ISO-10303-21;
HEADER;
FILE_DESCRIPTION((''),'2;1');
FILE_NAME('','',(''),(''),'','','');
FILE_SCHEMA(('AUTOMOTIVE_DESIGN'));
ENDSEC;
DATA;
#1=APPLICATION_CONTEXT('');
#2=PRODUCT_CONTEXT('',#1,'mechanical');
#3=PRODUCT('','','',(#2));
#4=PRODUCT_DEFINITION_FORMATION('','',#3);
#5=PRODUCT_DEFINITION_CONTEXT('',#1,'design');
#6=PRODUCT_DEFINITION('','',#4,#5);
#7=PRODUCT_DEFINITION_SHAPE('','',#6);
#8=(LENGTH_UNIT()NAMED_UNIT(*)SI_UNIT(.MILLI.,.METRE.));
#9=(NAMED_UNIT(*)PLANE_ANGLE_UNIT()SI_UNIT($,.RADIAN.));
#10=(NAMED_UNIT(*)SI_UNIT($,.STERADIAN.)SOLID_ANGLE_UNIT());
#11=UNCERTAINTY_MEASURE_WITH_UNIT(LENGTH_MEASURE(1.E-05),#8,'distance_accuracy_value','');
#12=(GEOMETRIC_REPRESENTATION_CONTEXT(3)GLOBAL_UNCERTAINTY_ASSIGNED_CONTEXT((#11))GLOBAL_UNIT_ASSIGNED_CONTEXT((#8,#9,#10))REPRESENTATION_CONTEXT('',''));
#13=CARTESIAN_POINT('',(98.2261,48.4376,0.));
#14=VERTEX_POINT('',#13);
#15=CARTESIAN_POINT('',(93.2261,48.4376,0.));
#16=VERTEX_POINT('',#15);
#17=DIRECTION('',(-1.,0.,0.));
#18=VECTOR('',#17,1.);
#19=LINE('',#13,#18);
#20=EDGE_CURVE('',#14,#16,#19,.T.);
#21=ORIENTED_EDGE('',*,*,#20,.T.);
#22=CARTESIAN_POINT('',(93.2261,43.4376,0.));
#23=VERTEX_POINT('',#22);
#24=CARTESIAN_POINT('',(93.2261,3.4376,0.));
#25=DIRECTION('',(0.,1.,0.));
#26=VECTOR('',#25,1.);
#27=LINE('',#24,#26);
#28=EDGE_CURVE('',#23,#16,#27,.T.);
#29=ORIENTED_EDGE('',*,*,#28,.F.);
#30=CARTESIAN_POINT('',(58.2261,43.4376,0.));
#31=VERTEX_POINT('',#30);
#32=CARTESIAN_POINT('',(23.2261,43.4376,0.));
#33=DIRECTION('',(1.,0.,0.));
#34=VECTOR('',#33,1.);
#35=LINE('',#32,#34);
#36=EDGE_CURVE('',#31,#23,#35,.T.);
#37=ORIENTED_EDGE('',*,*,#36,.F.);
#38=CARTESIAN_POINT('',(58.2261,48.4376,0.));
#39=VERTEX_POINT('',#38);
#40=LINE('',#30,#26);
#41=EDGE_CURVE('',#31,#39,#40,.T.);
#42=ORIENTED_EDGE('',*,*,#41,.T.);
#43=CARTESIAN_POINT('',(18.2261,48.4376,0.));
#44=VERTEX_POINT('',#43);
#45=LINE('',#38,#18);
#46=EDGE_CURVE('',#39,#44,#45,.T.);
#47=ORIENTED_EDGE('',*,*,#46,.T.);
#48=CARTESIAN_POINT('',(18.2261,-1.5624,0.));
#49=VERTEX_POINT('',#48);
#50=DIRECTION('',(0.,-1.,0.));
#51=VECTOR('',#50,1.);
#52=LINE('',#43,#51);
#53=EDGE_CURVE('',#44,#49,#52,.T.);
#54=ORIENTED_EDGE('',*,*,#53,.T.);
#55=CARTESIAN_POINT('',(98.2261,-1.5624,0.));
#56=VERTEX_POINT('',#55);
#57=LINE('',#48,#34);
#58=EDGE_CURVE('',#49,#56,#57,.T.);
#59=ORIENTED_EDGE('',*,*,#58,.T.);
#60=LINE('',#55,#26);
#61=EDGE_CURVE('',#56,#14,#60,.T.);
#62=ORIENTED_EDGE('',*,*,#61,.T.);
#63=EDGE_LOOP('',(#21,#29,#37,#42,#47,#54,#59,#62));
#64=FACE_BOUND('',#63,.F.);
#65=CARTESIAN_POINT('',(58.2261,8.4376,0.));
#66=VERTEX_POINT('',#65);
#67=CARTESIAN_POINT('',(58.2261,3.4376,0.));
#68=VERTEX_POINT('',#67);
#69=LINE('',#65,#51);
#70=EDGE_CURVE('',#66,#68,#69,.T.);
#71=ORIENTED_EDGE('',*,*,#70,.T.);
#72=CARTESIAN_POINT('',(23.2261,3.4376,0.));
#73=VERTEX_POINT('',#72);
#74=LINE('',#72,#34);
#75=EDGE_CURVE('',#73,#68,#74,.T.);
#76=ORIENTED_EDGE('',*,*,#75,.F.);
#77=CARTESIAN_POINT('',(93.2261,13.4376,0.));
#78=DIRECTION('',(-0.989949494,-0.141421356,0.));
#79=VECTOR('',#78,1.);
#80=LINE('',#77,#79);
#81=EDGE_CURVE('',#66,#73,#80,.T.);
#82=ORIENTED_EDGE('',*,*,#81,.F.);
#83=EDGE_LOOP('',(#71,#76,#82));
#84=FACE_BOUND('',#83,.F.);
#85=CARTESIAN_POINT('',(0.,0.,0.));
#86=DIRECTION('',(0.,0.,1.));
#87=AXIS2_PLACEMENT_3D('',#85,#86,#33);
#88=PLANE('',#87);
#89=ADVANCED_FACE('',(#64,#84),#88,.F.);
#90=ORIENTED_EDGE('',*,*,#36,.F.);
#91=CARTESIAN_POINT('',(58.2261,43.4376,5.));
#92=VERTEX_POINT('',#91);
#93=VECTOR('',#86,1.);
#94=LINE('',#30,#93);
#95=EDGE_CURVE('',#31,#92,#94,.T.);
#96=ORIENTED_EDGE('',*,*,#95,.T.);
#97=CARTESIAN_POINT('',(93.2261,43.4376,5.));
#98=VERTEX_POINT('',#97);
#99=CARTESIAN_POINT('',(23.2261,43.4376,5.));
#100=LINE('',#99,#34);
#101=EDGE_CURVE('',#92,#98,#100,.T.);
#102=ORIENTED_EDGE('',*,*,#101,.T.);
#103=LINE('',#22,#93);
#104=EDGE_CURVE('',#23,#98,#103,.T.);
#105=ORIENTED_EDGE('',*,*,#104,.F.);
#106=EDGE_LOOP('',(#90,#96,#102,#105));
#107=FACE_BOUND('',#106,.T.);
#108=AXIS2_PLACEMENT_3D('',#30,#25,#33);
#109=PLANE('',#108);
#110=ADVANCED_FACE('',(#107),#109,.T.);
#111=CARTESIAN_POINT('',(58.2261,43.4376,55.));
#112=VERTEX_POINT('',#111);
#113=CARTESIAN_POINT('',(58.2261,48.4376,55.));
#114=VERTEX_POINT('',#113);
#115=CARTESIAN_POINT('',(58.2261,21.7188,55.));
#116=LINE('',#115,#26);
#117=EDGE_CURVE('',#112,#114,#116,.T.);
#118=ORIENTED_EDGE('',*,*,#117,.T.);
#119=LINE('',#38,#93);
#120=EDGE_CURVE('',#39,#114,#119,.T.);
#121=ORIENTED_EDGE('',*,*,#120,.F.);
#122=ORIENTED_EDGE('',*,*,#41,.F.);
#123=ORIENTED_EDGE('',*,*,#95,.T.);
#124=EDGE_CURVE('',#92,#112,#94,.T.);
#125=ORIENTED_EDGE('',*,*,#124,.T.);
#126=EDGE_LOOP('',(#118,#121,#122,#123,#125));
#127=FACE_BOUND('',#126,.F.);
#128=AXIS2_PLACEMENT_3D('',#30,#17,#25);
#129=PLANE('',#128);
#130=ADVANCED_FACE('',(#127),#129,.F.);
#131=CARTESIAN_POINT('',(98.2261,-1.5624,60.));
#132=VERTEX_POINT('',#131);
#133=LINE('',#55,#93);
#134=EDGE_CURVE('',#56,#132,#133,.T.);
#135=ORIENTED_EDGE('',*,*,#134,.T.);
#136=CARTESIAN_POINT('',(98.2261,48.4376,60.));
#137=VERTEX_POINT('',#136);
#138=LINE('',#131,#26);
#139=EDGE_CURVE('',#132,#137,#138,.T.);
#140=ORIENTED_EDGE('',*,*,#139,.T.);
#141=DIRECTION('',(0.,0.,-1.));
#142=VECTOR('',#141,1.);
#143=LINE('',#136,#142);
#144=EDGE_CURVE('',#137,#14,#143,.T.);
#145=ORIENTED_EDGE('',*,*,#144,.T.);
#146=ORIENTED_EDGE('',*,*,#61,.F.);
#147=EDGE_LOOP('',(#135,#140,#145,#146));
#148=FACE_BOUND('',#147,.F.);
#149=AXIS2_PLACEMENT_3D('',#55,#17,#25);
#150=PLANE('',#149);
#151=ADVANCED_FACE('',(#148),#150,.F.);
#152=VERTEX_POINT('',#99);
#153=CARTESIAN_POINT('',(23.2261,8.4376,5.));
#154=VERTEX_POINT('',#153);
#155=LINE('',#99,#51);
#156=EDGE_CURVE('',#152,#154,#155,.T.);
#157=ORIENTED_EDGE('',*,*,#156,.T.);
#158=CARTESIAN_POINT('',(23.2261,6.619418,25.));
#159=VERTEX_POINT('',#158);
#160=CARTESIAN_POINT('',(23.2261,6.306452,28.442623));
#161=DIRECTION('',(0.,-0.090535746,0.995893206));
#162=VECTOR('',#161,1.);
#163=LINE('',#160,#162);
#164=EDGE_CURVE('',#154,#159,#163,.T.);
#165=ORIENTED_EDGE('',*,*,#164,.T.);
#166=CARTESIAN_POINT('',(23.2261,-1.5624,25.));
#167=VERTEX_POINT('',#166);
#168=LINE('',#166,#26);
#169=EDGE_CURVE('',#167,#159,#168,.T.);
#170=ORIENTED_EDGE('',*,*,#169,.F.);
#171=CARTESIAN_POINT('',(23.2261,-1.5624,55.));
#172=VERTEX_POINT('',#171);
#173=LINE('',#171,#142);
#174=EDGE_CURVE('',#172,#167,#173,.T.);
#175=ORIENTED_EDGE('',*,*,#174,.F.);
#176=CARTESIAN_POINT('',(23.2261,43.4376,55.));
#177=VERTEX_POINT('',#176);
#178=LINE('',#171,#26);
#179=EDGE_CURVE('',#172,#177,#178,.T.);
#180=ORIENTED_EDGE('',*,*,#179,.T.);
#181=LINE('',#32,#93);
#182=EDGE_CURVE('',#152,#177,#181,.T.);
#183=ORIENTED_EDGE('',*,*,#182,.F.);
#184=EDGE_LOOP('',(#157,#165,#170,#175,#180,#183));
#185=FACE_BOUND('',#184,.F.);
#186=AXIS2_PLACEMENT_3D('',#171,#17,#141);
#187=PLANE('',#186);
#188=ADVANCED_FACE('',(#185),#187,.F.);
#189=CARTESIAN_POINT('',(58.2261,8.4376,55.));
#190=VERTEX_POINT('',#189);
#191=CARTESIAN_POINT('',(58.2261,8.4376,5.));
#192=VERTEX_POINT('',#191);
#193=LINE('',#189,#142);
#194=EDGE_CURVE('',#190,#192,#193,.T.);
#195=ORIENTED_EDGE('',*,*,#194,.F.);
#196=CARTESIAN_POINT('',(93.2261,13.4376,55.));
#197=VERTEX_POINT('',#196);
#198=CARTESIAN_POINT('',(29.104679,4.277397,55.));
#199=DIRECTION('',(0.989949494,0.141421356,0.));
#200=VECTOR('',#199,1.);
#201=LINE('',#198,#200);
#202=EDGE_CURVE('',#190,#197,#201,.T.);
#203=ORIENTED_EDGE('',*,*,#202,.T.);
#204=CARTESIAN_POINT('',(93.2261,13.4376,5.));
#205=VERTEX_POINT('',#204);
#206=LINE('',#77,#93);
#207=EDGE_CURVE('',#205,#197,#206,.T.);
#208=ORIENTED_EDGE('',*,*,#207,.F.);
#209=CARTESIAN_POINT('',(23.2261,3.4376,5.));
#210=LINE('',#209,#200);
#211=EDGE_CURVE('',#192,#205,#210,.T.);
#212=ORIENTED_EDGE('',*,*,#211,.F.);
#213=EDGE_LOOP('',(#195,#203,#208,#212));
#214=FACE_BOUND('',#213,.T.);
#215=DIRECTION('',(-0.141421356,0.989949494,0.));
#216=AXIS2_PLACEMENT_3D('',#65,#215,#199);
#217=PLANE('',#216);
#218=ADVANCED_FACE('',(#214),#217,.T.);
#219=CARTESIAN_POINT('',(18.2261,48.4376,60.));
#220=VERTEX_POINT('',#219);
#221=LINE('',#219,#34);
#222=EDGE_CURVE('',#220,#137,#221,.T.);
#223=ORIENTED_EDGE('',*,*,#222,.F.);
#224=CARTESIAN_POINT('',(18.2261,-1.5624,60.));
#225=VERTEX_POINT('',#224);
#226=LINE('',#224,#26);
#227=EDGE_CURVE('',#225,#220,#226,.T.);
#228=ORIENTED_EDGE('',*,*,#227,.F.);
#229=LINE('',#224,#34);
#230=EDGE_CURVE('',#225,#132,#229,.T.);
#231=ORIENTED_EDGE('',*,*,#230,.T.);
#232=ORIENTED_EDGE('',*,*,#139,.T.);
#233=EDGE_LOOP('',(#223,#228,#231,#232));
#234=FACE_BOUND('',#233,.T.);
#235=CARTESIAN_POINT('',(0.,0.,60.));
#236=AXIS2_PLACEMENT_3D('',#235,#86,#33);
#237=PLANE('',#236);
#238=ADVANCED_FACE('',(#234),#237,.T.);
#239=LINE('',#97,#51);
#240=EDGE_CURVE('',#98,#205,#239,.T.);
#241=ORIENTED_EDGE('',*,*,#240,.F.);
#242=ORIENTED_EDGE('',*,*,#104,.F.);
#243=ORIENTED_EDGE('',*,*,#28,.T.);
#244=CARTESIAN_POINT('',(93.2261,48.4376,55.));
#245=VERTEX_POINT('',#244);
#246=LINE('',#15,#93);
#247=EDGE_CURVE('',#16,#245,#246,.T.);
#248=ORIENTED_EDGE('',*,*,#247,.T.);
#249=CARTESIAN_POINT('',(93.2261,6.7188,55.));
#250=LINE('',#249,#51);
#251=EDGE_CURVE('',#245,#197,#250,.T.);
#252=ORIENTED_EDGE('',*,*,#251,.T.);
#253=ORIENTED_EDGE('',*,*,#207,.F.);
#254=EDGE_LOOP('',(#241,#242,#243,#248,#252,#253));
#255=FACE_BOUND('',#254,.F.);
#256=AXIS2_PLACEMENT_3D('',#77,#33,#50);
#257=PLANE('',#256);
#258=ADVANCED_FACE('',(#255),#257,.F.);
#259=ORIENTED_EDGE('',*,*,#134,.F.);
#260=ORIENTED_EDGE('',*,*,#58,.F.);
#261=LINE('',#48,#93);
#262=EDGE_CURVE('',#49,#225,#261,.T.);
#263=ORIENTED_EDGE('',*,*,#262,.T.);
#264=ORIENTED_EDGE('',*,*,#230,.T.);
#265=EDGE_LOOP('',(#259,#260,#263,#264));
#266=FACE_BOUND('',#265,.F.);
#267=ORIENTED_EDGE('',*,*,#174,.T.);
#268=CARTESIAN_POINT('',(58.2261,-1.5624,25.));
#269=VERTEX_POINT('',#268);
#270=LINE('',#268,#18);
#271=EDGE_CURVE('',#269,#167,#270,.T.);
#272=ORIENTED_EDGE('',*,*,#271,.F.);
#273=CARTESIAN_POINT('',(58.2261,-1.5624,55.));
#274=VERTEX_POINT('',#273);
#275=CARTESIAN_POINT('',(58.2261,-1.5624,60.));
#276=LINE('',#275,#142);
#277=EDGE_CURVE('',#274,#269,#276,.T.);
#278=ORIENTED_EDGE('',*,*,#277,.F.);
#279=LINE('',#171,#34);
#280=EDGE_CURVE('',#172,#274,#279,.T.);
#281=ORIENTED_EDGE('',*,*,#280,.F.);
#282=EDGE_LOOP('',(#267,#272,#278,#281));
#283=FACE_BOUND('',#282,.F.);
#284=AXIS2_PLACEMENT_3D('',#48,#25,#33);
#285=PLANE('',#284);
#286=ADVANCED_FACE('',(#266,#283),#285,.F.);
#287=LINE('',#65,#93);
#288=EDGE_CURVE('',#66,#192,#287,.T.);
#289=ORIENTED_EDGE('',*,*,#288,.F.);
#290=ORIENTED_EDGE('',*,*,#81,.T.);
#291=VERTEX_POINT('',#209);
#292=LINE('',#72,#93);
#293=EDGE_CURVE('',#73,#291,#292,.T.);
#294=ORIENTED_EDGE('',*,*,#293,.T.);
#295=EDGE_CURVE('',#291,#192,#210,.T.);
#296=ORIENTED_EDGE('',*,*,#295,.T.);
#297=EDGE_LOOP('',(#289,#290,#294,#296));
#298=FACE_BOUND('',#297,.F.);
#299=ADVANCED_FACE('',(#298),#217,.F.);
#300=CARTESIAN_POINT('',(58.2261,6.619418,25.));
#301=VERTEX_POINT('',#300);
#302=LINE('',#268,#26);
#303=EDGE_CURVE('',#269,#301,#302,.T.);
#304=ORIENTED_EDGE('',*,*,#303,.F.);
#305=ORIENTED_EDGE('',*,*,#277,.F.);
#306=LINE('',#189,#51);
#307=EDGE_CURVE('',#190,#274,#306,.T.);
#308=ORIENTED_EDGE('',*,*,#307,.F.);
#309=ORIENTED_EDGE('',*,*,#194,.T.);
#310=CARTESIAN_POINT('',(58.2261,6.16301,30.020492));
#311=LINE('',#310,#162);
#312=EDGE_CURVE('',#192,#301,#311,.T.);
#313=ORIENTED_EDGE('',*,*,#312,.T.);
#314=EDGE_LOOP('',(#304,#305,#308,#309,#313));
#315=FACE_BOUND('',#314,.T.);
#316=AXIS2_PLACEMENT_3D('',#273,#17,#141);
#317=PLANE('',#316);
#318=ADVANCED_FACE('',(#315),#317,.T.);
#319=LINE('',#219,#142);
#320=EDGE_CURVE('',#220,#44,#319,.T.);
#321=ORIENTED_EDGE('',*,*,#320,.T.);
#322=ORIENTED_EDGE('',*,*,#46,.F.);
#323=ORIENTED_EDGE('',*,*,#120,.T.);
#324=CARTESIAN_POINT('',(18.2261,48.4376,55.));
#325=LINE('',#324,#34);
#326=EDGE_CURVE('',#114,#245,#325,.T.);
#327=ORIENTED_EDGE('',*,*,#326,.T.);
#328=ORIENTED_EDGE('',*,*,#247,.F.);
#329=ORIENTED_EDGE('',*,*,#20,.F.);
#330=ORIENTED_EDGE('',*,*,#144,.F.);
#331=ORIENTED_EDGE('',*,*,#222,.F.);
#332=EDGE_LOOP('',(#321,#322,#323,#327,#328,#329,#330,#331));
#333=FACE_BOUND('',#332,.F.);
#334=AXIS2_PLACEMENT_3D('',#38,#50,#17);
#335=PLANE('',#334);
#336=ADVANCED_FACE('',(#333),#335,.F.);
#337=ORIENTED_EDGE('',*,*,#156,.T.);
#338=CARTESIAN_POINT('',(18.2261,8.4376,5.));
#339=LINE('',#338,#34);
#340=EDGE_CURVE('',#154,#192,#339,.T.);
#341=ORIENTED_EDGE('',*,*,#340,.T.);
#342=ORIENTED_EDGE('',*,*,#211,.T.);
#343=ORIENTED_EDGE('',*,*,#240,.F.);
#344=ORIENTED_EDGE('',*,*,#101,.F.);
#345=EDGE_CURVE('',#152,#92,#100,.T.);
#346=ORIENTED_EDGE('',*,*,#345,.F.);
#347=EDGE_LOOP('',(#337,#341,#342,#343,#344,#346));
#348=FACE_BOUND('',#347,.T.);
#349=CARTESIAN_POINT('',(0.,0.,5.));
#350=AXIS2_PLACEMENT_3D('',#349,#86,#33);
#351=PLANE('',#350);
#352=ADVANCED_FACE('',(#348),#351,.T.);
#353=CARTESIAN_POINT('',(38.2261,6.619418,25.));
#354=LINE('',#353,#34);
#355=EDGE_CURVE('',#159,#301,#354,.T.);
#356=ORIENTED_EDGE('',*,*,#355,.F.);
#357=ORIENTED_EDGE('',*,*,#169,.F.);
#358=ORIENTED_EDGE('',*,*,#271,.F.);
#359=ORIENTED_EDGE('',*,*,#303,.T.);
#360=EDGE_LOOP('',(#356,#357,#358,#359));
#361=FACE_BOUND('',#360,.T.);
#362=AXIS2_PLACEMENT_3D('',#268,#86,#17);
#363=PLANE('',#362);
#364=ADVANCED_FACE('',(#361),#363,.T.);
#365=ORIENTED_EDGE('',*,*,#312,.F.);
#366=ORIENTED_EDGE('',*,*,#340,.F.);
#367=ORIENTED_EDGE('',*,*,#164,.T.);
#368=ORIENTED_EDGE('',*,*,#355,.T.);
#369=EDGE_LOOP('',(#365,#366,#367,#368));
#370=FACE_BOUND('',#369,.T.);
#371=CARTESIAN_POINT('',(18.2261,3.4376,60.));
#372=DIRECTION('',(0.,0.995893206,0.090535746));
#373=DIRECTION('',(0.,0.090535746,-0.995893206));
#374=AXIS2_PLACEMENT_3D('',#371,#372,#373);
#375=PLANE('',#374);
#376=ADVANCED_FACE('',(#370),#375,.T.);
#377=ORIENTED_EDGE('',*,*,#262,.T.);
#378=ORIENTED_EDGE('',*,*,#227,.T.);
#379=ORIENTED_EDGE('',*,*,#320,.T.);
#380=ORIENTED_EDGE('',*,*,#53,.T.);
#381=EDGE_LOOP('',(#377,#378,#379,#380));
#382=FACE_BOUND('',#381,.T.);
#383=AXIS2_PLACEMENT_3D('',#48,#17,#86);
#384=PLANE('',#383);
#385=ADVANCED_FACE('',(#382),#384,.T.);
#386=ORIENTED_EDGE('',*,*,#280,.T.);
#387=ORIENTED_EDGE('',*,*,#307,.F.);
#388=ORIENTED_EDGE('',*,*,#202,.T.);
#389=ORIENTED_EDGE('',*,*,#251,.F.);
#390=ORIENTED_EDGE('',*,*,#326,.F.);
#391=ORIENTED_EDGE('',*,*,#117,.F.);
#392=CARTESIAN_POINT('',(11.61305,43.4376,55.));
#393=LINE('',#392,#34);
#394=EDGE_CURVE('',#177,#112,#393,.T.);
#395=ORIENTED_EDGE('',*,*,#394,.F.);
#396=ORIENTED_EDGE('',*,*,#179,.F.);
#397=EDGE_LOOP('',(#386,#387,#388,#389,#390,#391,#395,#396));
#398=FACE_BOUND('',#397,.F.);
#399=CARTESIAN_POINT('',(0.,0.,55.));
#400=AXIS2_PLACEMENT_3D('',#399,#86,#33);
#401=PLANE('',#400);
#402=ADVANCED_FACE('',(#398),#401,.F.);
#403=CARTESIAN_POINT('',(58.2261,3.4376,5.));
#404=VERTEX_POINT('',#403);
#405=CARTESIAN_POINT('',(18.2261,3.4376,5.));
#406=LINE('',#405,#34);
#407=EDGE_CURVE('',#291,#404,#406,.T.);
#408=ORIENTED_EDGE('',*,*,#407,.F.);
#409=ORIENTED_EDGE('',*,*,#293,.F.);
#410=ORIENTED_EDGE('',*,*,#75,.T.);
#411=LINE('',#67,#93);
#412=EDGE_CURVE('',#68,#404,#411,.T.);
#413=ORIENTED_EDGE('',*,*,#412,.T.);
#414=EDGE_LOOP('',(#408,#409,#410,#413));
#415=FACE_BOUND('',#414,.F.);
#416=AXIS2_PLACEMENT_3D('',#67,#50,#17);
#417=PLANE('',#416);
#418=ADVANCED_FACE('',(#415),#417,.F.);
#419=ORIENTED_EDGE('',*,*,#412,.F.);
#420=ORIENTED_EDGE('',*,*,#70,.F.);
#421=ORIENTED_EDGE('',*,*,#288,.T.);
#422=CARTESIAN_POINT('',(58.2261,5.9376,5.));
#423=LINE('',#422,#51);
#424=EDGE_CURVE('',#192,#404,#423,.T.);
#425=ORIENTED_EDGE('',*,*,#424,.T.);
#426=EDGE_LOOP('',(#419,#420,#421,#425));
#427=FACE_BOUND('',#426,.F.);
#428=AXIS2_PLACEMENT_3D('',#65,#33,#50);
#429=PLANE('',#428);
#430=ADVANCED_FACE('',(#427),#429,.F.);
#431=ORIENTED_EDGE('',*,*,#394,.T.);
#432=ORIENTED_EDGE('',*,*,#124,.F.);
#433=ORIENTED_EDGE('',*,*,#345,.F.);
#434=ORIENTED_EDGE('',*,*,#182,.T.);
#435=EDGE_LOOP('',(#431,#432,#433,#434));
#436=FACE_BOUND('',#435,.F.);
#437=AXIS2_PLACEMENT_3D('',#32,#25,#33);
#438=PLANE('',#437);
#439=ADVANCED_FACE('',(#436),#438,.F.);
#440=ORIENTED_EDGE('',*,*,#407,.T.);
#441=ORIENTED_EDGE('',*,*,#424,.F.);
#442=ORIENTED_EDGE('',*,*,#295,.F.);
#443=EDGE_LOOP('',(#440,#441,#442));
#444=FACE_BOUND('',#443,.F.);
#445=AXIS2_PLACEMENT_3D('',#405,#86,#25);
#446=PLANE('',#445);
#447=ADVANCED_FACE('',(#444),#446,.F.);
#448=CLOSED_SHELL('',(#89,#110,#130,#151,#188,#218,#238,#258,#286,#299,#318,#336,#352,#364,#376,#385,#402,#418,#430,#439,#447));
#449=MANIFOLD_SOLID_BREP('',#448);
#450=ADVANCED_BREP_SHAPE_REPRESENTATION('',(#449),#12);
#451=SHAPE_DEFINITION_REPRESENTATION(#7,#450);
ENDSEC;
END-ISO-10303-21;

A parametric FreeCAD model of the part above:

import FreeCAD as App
import Part
import Sketcher

V = App.Vector


def add_polygon(sketch, points):
    """Adds a closed chain of lines whose ends are joined by coincident constraints."""
    first, n = sketch.GeometryCount, len(points)
    for a, b in zip(points, points[1:] + points[:1]):
        sketch.addGeometry(Part.LineSegment(App.Vector(*a, 0), App.Vector(*b, 0)), False)
    for i in range(n):
        sketch.addConstraint(Sketcher.Constraint("Coincident", first + i, 2, first + (i + 1) % n, 1))

doc = App.newDocument("Part")
body = doc.addObject("PartDesign::Body", "Body")

# Sketch on XY plane
sketch1 = body.newObject("Sketcher::SketchObject", "Sketch")
sketch1.AttachmentSupport = (doc.getObject("XY_Plane"), [""])
sketch1.MapMode = "FlatFace"
add_polygon(sketch1, [(58, 48), (18, 48), (18, -2), (98, -2), (98, 48), (93, 48), (93, 3), (23, 3), (23, 43), (58, 43)])  # lines 0-9
sketch1.addConstraint([
    Sketcher.Constraint("Horizontal", 0),
    Sketcher.Constraint("Vertical", 1),
    Sketcher.Constraint("Horizontal", 2),
    Sketcher.Constraint("Vertical", 3),
    Sketcher.Constraint("Horizontal", 4),
    Sketcher.Constraint("Vertical", 5),
    Sketcher.Constraint("Horizontal", 6),
    Sketcher.Constraint("Vertical", 7),
    Sketcher.Constraint("Horizontal", 8),
    Sketcher.Constraint("Vertical", 9),
    Sketcher.Constraint("Horizontal", 0, 2, 3, 2),
    Sketcher.Constraint("Equal", 0, 7),
    Sketcher.Constraint("Equal", 4, 9),
    Sketcher.Constraint("DistanceX", 0, 2, 0, 1, 40.0),
    Sketcher.Constraint("DistanceX", 4, 2, 4, 1, 5.0),
    Sketcher.Constraint("DistanceX", 6, 2, 6, 1, 70.0),
    Sketcher.Constraint("DistanceX", 8, 1, 8, 2, 35.0),
    Sketcher.Constraint("DistanceY", 2, 2, 5, 2, 5.0),
    Sketcher.Constraint("DistanceX", -1, 1, 0, 2, 18.226),
    Sketcher.Constraint("DistanceY", -1, 1, 0, 2, 48.4376),
])
pad1 = body.newObject("PartDesign::Pad", "Pad")
pad1.Profile = sketch1
pad1.Length = 60

# Sketch on XY plane
sketch2 = body.newObject("Sketcher::SketchObject", "Sketch001")
sketch2.AttachmentSupport = (doc.getObject("XY_Plane"), [""])
sketch2.MapMode = "FlatFace"
add_polygon(sketch2, [(93, 43), (23, 43), (23, 3), (93, 13)])  # lines 0-3
sketch2.addConstraint([
    Sketcher.Constraint("Horizontal", 0),
    Sketcher.Constraint("Vertical", 1),
    Sketcher.Constraint("Vertical", 3),
    Sketcher.Constraint("DistanceX", 0, 2, 0, 1, 70.0),
    Sketcher.Constraint("DistanceY", 1, 2, 1, 1, 40.0),
    Sketcher.Constraint("DistanceY", 1, 2, 2, 2, 10.0),
    Sketcher.Constraint("DistanceX", -1, 1, 0, 2, 23.226),
    Sketcher.Constraint("DistanceY", -1, 1, 0, 2, 43.4376),
])
pad2 = body.newObject("PartDesign::Pad", "Pad001")
pad2.Profile = sketch2
pad2.Length = 5

# Sketch on XY plane
sketch3 = body.newObject("Sketcher::SketchObject", "Sketch002")
sketch3.AttachmentSupport = (doc.getObject("XY_Plane"), [""])
sketch3.MapMode = "FlatFace"
add_polygon(sketch3, [(58, 8), (58, 3), (93, 3), (93, 13)])  # lines 0-3
sketch3.addConstraint([
    Sketcher.Constraint("Vertical", 0),
    Sketcher.Constraint("Horizontal", 1),
    Sketcher.Constraint("Vertical", 2),
    Sketcher.Constraint("DistanceX", 1, 1, 1, 2, 35.0),
    Sketcher.Constraint("DistanceY", 0, 2, 0, 1, 5.0),
    Sketcher.Constraint("DistanceY", 2, 1, 2, 2, 10.0),
    Sketcher.Constraint("DistanceX", -1, 1, 0, 2, 58.226),
    Sketcher.Constraint("DistanceY", -1, 1, 0, 2, 3.4376),
])
pad3 = body.newObject("PartDesign::Pad", "Pad002")
pad3.Profile = sketch3
pad3.Length = 60

# Sketch on YZ plane
sketch4 = body.newObject("Sketcher::SketchObject", "Sketch003")
sketch4.AttachmentSupport = (doc.getObject("YZ_Plane"), [""])
sketch4.MapMode = "FlatFace"
sketch4.AttachmentOffset = App.Placement(V(0, 0, 18.2261), App.Rotation())
add_polygon(sketch4, [(3, 5), (3, 60), (8, 5)])  # lines 0-2
sketch4.addConstraint([
    Sketcher.Constraint("Vertical", 0),
    Sketcher.Constraint("Horizontal", 2),
    Sketcher.Constraint("DistanceX", 2, 2, 2, 1, 5.0),
    Sketcher.Constraint("DistanceY", -1, 1, 1, 2, 5.0),
    Sketcher.Constraint("DistanceY", 0, 1, 0, 2, 55.0),
    Sketcher.Constraint("DistanceX", -1, 1, 0, 2, 3.4376),
])
pad4 = body.newObject("PartDesign::Pad", "Pad003")
pad4.Profile = sketch4
pad4.Length = 45

# Sketch on XY plane
sketch5 = body.newObject("Sketcher::SketchObject", "Sketch004")
sketch5.AttachmentSupport = (doc.getObject("XY_Plane"), [""])
sketch5.MapMode = "FlatFace"
sketch5.AttachmentOffset = App.Placement(V(0, 0, 60), App.Rotation())
add_polygon(sketch5, [(98, 48), (18, 48), (18, -2), (98, -2)])  # lines 0-3
sketch5.addConstraint([
    Sketcher.Constraint("Horizontal", 0),
    Sketcher.Constraint("Vertical", 1),
    Sketcher.Constraint("Horizontal", 2),
    Sketcher.Constraint("Vertical", 3),
    Sketcher.Constraint("DistanceX", 0, 2, 0, 1, 80.0),
    Sketcher.Constraint("DistanceY", 1, 2, 1, 1, 50.0),
    Sketcher.Constraint("DistanceX", -1, 1, 0, 2, 18.226),
    Sketcher.Constraint("DistanceY", -1, 1, 0, 2, 48.4376),
])
pad5 = body.newObject("PartDesign::Pad", "Pad004")
pad5.Profile = sketch5
pad5.Length = 5
pad5.Reversed = True

# Sketch on XZ plane
sketch6 = body.newObject("Sketcher::SketchObject", "Sketch005")
sketch6.AttachmentSupport = (doc.getObject("XZ_Plane"), [""])
sketch6.MapMode = "FlatFace"
sketch6.AttachmentOffset = App.Placement(V(0, 0, 1.5624), App.Rotation())
add_polygon(sketch6, [(23, 55), (23, 25), (58, 25), (58, 55)])  # lines 0-3
sketch6.addConstraint([
    Sketcher.Constraint("Vertical", 0),
    Sketcher.Constraint("Horizontal", 1),
    Sketcher.Constraint("Vertical", 2),
    Sketcher.Constraint("Horizontal", 3),
    Sketcher.Constraint("DistanceX", 1, 1, 1, 2, 35.0),
    Sketcher.Constraint("DistanceY", 0, 2, 0, 1, 30.0),
    Sketcher.Constraint("DistanceY", -1, 1, 0, 2, 25.0),
    Sketcher.Constraint("DistanceX", -1, 1, 0, 2, 23.226),
])
pocket1 = body.newObject("PartDesign::Pocket", "Pocket")
pocket1.Profile = sketch6
pocket1.Length = 10

doc.recompute()
